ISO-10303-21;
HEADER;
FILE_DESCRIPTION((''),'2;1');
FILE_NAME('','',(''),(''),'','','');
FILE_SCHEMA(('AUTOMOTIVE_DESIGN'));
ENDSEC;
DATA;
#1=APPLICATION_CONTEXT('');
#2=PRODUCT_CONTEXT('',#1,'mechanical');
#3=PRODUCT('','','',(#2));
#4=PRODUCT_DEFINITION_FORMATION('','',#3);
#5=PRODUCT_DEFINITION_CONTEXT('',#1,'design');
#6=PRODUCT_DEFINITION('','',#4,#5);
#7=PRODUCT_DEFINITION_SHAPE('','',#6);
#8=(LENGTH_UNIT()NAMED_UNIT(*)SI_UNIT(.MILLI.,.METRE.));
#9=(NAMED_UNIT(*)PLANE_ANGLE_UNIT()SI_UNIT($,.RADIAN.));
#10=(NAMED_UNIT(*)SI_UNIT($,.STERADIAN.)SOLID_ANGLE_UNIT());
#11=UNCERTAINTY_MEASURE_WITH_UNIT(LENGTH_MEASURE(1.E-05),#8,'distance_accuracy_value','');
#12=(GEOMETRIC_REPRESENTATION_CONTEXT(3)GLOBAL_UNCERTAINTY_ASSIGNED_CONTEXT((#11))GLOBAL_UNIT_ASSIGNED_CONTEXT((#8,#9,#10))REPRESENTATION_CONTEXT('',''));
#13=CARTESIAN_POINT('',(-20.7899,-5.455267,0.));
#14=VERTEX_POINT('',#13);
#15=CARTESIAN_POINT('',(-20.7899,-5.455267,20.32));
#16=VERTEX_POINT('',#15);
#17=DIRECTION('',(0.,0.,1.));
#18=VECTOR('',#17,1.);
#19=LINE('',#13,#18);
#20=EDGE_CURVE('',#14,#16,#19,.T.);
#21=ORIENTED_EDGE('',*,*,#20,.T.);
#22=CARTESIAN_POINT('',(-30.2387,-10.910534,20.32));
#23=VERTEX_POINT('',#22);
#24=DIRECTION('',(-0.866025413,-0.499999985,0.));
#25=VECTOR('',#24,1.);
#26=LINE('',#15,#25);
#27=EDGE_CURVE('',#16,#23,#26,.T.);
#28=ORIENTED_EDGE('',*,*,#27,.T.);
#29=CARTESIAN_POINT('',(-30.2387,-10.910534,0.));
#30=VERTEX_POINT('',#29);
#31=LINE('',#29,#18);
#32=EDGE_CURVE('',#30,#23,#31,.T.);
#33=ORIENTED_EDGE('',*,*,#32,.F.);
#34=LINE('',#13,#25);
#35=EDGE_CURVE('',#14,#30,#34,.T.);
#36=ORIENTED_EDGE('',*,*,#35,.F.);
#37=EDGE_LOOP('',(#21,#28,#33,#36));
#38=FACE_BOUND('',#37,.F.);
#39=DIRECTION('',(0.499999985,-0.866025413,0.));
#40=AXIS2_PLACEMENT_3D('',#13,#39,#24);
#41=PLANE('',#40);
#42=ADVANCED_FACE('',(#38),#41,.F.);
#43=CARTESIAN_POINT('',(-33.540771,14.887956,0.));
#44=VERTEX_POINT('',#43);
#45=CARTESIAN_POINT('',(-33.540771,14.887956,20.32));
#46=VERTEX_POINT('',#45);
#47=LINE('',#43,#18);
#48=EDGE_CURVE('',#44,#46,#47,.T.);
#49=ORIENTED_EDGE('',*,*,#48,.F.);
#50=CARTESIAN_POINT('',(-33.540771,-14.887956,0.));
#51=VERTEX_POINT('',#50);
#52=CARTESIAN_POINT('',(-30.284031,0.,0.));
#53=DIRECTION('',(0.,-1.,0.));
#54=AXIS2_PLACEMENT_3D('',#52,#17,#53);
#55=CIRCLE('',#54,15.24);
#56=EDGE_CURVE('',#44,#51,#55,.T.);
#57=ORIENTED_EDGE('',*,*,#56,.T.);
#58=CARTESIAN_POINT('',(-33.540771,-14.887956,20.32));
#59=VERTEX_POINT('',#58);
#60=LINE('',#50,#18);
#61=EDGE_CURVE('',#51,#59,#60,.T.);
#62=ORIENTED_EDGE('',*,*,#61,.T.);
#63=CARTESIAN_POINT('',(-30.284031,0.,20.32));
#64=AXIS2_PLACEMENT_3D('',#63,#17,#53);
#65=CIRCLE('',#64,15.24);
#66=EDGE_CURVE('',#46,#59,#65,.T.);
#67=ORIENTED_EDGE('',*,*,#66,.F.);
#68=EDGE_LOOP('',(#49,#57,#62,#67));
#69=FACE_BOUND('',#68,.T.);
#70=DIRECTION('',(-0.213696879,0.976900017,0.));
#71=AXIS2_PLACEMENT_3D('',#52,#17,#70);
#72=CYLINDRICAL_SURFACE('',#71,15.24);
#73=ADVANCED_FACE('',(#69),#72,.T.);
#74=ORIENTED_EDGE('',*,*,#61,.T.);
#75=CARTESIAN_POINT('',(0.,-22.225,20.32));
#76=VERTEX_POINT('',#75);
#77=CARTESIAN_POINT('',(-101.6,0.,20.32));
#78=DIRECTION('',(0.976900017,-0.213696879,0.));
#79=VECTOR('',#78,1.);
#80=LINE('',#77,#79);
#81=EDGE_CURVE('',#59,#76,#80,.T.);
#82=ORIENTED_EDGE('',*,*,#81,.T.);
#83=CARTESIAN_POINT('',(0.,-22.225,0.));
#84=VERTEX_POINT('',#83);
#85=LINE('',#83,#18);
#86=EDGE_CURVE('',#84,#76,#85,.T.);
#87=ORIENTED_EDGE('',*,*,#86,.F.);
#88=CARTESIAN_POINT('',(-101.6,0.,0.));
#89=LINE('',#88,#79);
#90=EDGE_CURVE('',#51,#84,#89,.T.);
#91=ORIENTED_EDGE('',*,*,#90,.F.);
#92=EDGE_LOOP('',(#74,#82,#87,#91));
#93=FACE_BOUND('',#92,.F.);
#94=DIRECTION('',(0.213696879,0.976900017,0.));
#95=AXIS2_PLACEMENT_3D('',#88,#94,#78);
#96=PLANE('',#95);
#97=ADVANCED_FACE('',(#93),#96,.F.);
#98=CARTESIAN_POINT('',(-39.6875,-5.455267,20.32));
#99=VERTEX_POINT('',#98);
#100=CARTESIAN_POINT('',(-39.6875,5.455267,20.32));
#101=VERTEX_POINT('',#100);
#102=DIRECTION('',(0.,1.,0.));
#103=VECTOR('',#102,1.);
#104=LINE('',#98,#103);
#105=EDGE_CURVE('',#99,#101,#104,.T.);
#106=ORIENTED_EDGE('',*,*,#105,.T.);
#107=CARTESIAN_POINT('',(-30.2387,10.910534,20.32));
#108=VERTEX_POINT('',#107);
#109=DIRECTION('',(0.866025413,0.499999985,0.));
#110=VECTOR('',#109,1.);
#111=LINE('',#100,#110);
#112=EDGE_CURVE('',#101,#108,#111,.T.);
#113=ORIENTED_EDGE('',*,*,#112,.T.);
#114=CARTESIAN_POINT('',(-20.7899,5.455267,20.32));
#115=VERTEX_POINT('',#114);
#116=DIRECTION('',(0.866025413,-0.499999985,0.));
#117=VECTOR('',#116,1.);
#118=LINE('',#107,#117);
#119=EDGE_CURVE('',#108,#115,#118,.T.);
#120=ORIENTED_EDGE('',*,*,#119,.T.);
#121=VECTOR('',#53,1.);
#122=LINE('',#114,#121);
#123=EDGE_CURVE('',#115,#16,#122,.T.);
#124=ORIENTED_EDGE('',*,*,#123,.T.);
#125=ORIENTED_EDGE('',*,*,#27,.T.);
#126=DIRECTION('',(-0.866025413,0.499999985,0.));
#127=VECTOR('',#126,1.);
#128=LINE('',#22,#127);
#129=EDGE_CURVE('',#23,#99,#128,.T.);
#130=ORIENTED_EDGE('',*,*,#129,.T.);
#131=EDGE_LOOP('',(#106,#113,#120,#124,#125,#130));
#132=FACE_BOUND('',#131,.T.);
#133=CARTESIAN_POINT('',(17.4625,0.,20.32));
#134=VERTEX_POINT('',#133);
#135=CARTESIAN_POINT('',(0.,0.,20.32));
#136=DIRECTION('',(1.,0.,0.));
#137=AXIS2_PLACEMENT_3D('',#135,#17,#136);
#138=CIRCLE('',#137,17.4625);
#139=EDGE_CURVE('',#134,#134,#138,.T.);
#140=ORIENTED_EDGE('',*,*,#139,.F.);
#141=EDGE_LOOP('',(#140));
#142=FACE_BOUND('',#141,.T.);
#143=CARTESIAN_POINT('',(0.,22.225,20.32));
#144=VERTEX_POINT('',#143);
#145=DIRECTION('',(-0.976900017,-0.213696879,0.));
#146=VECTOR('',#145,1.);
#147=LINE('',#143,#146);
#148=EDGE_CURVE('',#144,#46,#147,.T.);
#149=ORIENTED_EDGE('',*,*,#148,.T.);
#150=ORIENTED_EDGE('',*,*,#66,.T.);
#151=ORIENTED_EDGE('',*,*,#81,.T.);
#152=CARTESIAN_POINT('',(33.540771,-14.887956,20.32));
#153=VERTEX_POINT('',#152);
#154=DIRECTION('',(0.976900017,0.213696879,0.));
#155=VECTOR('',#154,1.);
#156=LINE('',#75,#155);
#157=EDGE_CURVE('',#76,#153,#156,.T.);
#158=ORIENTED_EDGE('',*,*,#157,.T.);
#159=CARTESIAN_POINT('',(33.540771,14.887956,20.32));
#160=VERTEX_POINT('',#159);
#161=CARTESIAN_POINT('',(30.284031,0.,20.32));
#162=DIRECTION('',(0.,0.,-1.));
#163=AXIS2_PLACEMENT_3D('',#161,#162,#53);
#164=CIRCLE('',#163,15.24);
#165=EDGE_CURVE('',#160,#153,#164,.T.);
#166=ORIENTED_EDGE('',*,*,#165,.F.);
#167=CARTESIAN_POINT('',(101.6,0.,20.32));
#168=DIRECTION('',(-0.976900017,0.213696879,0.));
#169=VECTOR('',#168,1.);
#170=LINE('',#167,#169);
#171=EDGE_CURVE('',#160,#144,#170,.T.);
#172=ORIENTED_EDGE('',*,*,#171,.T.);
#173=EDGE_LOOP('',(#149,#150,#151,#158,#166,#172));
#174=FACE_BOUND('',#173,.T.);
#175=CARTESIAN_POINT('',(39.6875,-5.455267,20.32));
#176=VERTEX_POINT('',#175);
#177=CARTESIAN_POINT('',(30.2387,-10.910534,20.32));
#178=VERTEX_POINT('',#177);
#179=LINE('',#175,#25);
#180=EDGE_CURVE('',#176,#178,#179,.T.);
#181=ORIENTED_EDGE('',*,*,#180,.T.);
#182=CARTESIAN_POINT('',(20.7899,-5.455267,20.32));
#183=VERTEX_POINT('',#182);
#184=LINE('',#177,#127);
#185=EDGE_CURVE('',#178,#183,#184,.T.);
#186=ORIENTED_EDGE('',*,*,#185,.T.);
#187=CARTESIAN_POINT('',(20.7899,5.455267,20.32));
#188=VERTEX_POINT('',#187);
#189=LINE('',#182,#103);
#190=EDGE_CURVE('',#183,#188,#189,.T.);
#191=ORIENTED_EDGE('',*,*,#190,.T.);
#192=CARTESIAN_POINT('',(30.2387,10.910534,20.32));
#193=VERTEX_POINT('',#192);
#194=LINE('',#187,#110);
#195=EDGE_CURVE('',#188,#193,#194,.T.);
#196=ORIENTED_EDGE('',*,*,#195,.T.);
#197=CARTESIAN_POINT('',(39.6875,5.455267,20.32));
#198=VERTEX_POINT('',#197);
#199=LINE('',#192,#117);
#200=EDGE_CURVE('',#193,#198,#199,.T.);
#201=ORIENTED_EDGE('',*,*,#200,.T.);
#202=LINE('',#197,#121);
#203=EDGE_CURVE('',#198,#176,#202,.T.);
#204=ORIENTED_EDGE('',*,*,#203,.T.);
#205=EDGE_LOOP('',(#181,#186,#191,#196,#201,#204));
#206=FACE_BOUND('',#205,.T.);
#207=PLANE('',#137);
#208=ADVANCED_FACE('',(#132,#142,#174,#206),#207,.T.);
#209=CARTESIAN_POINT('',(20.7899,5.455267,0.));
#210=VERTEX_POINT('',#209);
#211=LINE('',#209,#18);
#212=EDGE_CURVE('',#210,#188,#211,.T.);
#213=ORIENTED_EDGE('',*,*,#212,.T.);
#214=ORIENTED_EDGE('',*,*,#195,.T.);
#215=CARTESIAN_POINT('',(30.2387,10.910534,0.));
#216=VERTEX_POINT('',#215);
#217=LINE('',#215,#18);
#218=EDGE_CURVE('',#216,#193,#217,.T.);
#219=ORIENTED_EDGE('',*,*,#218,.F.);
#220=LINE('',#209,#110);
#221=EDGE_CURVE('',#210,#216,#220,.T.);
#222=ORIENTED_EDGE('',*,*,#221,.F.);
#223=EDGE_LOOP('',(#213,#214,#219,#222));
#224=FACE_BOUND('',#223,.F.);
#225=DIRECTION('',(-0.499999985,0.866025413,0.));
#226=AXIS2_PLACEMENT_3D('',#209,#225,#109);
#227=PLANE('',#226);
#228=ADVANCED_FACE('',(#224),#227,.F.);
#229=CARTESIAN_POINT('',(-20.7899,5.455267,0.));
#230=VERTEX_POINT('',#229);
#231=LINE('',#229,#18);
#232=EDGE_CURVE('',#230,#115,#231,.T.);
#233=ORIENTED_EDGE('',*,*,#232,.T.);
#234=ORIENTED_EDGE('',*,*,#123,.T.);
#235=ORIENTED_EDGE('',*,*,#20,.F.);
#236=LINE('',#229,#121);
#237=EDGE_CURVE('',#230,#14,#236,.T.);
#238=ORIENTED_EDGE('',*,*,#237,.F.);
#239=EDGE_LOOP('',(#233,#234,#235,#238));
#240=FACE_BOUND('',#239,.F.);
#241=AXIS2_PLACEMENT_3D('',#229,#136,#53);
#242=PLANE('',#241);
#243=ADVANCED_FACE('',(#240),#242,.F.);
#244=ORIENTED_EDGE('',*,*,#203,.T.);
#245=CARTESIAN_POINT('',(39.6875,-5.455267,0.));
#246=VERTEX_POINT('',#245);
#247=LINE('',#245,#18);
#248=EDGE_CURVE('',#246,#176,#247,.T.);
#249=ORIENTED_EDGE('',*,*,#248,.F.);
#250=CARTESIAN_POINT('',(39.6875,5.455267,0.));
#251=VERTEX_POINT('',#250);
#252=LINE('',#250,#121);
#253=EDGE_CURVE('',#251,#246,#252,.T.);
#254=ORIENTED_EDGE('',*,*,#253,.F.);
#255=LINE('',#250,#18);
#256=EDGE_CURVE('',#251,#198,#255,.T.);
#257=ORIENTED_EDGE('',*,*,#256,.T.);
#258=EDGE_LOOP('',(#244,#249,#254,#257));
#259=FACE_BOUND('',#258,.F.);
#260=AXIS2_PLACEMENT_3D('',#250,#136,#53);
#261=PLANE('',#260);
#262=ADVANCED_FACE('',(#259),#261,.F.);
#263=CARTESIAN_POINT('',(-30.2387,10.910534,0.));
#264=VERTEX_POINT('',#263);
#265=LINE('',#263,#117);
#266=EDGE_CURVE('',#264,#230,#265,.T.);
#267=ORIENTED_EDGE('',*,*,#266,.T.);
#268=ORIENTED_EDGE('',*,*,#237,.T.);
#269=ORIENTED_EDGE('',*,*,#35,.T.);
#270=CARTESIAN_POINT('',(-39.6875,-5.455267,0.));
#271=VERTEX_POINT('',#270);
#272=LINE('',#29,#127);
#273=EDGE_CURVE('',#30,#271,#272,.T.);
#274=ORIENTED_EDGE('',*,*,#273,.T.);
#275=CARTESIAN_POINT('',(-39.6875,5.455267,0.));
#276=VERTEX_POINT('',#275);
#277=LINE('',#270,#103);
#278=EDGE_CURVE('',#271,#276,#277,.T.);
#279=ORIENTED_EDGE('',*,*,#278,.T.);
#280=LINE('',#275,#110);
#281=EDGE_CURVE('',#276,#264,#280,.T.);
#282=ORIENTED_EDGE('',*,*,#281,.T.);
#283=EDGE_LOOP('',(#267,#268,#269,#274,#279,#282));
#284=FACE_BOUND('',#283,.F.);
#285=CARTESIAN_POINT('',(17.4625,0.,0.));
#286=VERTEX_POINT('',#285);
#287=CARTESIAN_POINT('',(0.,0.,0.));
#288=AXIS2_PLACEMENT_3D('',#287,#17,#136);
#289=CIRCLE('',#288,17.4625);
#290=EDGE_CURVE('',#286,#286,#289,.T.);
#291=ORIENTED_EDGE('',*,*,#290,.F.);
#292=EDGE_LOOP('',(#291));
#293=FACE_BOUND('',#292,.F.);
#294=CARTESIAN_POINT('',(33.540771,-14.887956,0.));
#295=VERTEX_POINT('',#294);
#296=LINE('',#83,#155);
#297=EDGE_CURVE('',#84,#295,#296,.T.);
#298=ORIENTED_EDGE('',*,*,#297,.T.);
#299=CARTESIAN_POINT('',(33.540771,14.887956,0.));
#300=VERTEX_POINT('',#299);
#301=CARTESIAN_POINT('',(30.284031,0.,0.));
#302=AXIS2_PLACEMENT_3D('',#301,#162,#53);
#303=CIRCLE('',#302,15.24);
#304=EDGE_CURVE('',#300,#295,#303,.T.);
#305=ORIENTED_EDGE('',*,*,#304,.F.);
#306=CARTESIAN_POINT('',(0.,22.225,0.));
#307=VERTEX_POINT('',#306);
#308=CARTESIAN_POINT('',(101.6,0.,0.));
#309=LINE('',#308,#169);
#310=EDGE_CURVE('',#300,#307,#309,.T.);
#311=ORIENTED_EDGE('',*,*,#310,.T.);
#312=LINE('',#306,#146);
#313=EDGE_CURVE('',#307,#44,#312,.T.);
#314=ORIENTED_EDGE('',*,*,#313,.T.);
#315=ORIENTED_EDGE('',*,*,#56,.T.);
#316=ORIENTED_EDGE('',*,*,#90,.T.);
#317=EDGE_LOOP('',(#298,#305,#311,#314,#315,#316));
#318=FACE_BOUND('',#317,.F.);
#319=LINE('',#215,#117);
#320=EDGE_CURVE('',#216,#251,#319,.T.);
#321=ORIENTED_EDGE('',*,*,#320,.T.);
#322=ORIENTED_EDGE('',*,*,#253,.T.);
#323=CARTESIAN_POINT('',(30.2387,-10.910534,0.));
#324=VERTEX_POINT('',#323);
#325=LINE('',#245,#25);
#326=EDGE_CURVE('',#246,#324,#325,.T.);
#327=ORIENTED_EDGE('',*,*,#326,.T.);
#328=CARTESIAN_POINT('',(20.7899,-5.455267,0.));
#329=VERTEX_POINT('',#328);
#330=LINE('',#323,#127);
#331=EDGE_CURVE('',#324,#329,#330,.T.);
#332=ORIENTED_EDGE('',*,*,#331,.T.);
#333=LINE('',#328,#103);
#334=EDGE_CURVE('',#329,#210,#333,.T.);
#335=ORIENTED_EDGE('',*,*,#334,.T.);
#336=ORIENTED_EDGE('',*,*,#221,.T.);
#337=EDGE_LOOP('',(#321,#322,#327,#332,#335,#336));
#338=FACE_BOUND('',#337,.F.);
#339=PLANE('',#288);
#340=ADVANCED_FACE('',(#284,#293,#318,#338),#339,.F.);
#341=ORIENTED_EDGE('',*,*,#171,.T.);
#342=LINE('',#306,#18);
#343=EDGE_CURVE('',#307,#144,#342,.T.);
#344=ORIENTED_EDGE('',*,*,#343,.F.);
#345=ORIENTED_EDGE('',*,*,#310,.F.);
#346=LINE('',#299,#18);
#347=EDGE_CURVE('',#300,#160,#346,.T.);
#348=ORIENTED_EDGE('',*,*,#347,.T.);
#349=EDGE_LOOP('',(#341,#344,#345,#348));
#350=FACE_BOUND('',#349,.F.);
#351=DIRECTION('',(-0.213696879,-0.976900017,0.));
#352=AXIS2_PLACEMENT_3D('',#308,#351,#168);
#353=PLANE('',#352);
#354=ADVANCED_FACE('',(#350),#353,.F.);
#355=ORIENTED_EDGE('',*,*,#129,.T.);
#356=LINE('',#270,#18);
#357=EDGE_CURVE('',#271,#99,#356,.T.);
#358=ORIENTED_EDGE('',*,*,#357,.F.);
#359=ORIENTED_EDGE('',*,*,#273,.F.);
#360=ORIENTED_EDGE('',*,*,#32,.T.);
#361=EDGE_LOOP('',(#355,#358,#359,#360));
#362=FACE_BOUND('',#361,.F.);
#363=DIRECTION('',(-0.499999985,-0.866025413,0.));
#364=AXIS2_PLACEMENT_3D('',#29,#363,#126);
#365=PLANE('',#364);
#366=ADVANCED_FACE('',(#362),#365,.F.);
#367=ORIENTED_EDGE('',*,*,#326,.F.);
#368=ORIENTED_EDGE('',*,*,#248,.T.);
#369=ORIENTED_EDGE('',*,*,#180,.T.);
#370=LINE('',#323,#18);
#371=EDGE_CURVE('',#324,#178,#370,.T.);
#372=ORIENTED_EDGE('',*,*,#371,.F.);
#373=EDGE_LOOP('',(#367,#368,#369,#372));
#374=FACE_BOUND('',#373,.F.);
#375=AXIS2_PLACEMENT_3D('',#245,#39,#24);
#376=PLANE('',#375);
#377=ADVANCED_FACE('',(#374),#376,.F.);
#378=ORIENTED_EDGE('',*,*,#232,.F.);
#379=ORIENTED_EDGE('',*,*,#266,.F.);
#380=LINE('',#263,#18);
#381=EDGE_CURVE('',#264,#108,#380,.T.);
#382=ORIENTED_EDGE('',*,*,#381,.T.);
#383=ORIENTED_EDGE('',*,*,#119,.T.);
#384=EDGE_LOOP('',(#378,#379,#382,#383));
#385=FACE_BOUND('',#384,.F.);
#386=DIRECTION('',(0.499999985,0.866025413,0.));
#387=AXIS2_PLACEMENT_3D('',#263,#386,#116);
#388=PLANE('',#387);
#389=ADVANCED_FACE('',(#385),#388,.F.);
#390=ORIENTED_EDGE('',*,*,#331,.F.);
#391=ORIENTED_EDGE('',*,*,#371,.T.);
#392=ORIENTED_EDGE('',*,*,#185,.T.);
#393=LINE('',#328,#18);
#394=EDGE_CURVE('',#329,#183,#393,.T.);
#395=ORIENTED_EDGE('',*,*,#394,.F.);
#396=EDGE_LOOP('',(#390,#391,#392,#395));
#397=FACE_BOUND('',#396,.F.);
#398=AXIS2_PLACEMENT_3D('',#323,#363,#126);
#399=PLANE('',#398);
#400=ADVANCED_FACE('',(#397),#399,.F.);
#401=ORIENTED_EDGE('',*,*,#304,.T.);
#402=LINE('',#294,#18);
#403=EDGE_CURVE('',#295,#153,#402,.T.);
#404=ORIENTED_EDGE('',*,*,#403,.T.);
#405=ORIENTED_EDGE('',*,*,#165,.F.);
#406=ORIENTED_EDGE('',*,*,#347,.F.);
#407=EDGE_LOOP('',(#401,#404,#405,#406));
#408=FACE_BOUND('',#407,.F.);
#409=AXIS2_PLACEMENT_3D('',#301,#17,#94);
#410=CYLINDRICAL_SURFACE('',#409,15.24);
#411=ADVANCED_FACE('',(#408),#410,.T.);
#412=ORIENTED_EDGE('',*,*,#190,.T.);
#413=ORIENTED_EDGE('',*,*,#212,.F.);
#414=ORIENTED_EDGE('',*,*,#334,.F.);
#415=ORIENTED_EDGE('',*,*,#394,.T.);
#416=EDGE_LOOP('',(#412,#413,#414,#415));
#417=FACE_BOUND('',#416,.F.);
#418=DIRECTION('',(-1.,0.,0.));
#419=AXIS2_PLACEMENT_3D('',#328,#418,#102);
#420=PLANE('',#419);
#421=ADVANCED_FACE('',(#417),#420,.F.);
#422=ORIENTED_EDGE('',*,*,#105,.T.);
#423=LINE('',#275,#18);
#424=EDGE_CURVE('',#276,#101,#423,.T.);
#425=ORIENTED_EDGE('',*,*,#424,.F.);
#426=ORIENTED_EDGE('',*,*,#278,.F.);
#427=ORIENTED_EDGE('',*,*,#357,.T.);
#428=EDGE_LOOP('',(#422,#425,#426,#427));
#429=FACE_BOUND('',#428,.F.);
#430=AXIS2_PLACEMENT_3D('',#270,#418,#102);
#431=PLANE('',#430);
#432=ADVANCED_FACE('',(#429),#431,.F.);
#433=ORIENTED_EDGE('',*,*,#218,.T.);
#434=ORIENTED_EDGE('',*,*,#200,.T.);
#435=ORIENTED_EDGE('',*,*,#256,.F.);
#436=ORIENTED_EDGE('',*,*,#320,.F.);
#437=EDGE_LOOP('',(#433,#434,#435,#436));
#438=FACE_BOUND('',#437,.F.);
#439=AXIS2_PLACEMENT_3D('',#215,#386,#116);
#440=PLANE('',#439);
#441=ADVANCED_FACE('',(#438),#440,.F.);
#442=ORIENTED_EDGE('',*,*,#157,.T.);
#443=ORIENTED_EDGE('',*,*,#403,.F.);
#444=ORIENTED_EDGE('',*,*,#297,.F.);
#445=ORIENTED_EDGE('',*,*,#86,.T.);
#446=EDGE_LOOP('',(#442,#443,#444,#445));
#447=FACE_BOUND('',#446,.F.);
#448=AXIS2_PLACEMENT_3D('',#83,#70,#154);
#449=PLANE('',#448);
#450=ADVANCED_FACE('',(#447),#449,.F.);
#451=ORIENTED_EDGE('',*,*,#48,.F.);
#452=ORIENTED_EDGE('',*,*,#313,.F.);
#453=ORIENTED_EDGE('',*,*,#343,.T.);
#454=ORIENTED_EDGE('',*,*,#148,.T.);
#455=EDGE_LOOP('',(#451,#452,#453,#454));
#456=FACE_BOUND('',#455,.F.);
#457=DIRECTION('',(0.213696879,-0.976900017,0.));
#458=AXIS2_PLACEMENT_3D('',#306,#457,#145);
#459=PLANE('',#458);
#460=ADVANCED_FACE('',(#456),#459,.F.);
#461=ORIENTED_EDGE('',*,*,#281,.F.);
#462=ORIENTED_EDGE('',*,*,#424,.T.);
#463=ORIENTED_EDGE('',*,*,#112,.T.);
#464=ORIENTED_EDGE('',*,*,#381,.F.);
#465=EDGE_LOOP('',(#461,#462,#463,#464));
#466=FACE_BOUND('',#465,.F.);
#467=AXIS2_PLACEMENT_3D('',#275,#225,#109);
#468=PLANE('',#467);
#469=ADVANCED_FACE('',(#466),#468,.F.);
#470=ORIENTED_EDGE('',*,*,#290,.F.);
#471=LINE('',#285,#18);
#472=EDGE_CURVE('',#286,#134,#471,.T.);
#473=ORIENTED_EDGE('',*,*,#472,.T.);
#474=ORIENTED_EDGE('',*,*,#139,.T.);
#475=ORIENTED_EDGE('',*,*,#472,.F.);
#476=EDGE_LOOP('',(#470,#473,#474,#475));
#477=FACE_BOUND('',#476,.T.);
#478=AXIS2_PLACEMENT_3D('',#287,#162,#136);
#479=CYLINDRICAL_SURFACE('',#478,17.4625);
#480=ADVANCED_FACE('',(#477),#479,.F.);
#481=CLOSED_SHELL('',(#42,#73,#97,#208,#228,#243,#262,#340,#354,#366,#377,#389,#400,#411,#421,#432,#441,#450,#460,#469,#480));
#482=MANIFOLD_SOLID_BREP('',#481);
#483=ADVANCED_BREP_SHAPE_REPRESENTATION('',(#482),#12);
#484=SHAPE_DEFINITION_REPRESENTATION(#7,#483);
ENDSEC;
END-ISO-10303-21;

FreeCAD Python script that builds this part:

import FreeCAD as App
import Part
import Sketcher

V = App.Vector
Q = App.Units.Quantity


def edges_at(feature, points):
    """Names of the edges that pass closest to the given points."""
    edges = feature.Shape.Edges
    near = lambda p: min(range(len(edges)), key=lambda i: edges[i].distToShape(Part.Vertex(*p))[0])
    return sorted({f"Edge{near(p) + 1}" for p in points})

doc = App.newDocument("Part")
body = doc.addObject("PartDesign::Body", "Body")

sketch1 = body.newObject("Sketcher::SketchObject", "Sketch")
sketch1.AttachmentSupport = (doc.getObject("XY_Plane"), [""])
sketch1.MapMode = "FlatFace"
sketch1.addGeometry([
    Part.LineSegment(V(101.6, 0, 0), V(0, 22.225, 0)),
    Part.LineSegment(V(0, 22.225, 0), V(-101.6, 0, 0)),
    Part.LineSegment(V(-101.6, 0, 0), V(0, -22.225, 0)),
    Part.LineSegment(V(0, -22.225, 0), V(101.6, 0, 0)),
    Part.LineSegment(V(-20.7899, -5.455267, 0), V(-30.2387, -10.910534, 0)),
    Part.LineSegment(V(-30.2387, -10.910534, 0), V(-39.6875, -5.455267, 0)),
    Part.LineSegment(V(-39.6875, -5.455267, 0), V(-39.6875, 5.455267, 0)),
    Part.LineSegment(V(-39.6875, 5.455267, 0), V(-30.2387, 10.910534, 0)),
    Part.LineSegment(V(-30.2387, 10.910534, 0), V(-20.7899, 5.455267, 0)),
    Part.LineSegment(V(-20.7899, 5.455267, 0), V(-20.7899, -5.455267, 0)),
    Part.Circle(V(0, 0, 0), V(0, 0, 1), 17.4625),
    Part.LineSegment(V(30.2387, -10.910534, 0), V(20.7899, -5.455267, 0)),
    Part.LineSegment(V(20.7899, -5.455267, 0), V(20.7899, 5.455267, 0)),
    Part.LineSegment(V(20.7899, 5.455267, 0), V(30.2387, 10.910534, 0)),
    Part.LineSegment(V(30.2387, 10.910534, 0), V(39.6875, 5.455267, 0)),
    Part.LineSegment(V(39.6875, 5.455267, 0), V(39.6875, -5.455267, 0)),
    Part.LineSegment(V(39.6875, -5.455267, 0), V(30.2387, -10.910534, 0)),
], False)
sketch1.addConstraint([
    Sketcher.Constraint("Coincident", 0, 2, 1, 1),
    Sketcher.Constraint("Coincident", 1, 2, 2, 1),
    Sketcher.Constraint("Coincident", 2, 2, 3, 1),
    Sketcher.Constraint("Coincident", 3, 2, 0, 1),
    Sketcher.Constraint("Coincident", 4, 2, 5, 1),
    Sketcher.Constraint("Coincident", 5, 2, 6, 1),
    Sketcher.Constraint("Coincident", 6, 2, 7, 1),
    Sketcher.Constraint("Coincident", 7, 2, 8, 1),
    Sketcher.Constraint("Coincident", 8, 2, 9, 1),
    Sketcher.Constraint("Coincident", 9, 2, 4, 1),
    Sketcher.Constraint("Coincident", 11, 2, 12, 1),
    Sketcher.Constraint("Coincident", 12, 2, 13, 1),
    Sketcher.Constraint("Coincident", 13, 2, 14, 1),
    Sketcher.Constraint("Coincident", 14, 2, 15, 1),
    Sketcher.Constraint("Coincident", 15, 2, 16, 1),
    Sketcher.Constraint("Coincident", 16, 2, 11, 1),
    Sketcher.Constraint("Vertical", 6),
    Sketcher.Constraint("Vertical", 9),
    Sketcher.Constraint("Vertical", 12),
    Sketcher.Constraint("Vertical", 15),
    Sketcher.Constraint("Coincident", 10, 3, -1, 1),
    Sketcher.Constraint("Symmetric", 0, 2, 2, 2, -1, 1),
    Sketcher.Constraint("Symmetric", 1, 2, 3, 2, -1, 1),
    Sketcher.Constraint("Symmetric", 8, 2, 11, 2, -1, 1),
    Sketcher.Constraint("Symmetric", 4, 2, 13, 2, -1, 1),
    Sketcher.Constraint("Symmetric", 5, 2, 14, 2, -1, 1),
    Sketcher.Constraint("Symmetric", 7, 2, 16, 2, -1, 1),
    Sketcher.Constraint("Symmetric", 7, 2, 13, 2, -2),
    Sketcher.Constraint("PointOnObject", 0, 2, -2),
    Sketcher.Constraint("PointOnObject", 1, 2, -1),
    Sketcher.Constraint("Parallel", 4, 7),
    Sketcher.Constraint("Parallel", 5, 8),
    Sketcher.Constraint("Parallel", 7, 13),
    Sketcher.Constraint("Parallel", 13, 16),
    Sketcher.Constraint("Horizontal", 6, 2, 8, 2),
    Sketcher.Constraint("Horizontal", 5, 2, 9, 2),
    Sketcher.Constraint("Diameter", 10, Q("1.375 in")),
    Sketcher.Constraint("DistanceX", 1, 2, -1, 1, Q("4 in")),
    Sketcher.Constraint("Angle", 4, Q("-150.000001 deg")),
    Sketcher.Constraint("DistanceY", 2, 2, 0, 2, Q("1.75 in")),
    Sketcher.Constraint("DistanceX", 5, 2, -1, 1, Q("1.5625 in")),
    Sketcher.Constraint("DistanceX", 5, 2, 4, 2, Q("0.372 in")),
    Sketcher.Constraint("DistanceY", 4, 2, 6, 2, Q("16.365801 mm")),
])
pad1 = body.newObject("PartDesign::Pad", "Pad")
pad1.Profile = sketch1
pad1.Length = Q("0.8 in")
doc.recompute()

fillet = body.newObject("PartDesign::Fillet", "Fillet")
fillet.Base = (pad1, edges_at(pad1, [(101.6, 0, 10.16), (-101.6, 0, 10.16)]))
fillet.Radius = Q("0.6 in")

doc.recompute()
